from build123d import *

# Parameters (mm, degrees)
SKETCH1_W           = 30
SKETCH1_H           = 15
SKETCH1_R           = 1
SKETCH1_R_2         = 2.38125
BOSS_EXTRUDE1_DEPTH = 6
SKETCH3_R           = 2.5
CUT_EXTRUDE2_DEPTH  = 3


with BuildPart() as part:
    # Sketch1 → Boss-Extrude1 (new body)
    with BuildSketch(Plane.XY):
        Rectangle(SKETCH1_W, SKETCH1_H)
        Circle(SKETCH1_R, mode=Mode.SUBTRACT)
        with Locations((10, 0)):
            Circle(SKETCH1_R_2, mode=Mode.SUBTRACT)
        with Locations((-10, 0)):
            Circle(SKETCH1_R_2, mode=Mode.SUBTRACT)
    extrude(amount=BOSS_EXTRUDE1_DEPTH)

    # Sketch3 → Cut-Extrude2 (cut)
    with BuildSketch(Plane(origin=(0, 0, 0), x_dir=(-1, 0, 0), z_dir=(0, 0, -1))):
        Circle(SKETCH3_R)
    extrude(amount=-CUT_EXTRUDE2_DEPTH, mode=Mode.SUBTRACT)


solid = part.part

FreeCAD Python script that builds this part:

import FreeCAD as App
import Part
import Sketcher
from FreeCAD import Vector


def add_polygon(sketch, points):
    """Adds a closed chain of lines whose ends are joined by coincident constraints."""
    first, n = sketch.GeometryCount, len(points)
    for a, b in zip(points, points[1:] + points[:1]):
        sketch.addGeometry(Part.LineSegment(App.Vector(*a, 0), App.Vector(*b, 0)), False)
    for i in range(n):
        sketch.addConstraint(Sketcher.Constraint("Coincident", first + i, 2, first + (i + 1) % n, 1))

doc = App.newDocument("Part")
body = doc.addObject("PartDesign::Body", "Body")

# Sketch on XY plane
sketch1 = body.newObject("Sketcher::SketchObject", "Sketch")
sketch1.AttachmentSupport = (doc.getObject("XY_Plane"), [""])
sketch1.MapMode = "FlatFace"
add_polygon(sketch1, [(-15, 7.5), (-15, -7.5), (15, -7.5), (15, 7.5)])  # lines 0-3
sketch1.addGeometry(Part.Circle(Vector(-10, 0, 0), Vector(0, 0, 1), 2.4), False)  # 4
sketch1.addGeometry(Part.Circle(Vector(0, 0, 0), Vector(0, 0, 1), 1), False)  # 5
sketch1.addGeometry(Part.Circle(Vector(10, 0, 0), Vector(0, 0, 1), 2.4), False)  # 6
sketch1.addConstraint([
    Sketcher.Constraint("Vertical", 0),
    Sketcher.Constraint("Horizontal", 1),
    Sketcher.Constraint("Vertical", 2),
    Sketcher.Constraint("Horizontal", 3),
    Sketcher.Constraint("Coincident", 5, 3, -1, 1),
    Sketcher.Constraint("Equal", 4, 6),
    Sketcher.Constraint("Symmetric", 4, 3, 6, 3, -1, 1),
    Sketcher.Constraint("Symmetric", 0, 2, 2, 2, -1, 1),
    Sketcher.Constraint("PointOnObject", 4, 3, -1),
    Sketcher.Constraint("Diameter", 5, 2.0),
    Sketcher.Constraint("DistanceX", 1, 1, 1, 2, 30.0),
    Sketcher.Constraint("DistanceY", 0, 2, 0, 1, 15.0),
    Sketcher.Constraint("DistanceX", 4, 3, -1, 1, 10.0),
    Sketcher.Constraint("Diameter", 4, 4.7625),
])
pad1 = body.newObject("PartDesign::Pad", "Pad")
pad1.Profile = sketch1
pad1.Length = 6

# Sketch on XY plane
sketch2 = body.newObject("Sketcher::SketchObject", "Sketch001")
sketch2.AttachmentSupport = (doc.getObject("XY_Plane"), [""])
sketch2.MapMode = "FlatFace"
sketch2.addGeometry(Part.Circle(Vector(0, 0, 0), Vector(0, 0, 1), 2.5), False)
sketch2.addConstraint([
    Sketcher.Constraint("Coincident", 0, 3, -1, 1),
    Sketcher.Constraint("Diameter", 0, 5.0),
])
pocket1 = body.newObject("PartDesign::Pocket", "Pocket")
pocket1.Profile = sketch2
pocket1.Length = 3
pocket1.Reversed = True

doc.recompute()
